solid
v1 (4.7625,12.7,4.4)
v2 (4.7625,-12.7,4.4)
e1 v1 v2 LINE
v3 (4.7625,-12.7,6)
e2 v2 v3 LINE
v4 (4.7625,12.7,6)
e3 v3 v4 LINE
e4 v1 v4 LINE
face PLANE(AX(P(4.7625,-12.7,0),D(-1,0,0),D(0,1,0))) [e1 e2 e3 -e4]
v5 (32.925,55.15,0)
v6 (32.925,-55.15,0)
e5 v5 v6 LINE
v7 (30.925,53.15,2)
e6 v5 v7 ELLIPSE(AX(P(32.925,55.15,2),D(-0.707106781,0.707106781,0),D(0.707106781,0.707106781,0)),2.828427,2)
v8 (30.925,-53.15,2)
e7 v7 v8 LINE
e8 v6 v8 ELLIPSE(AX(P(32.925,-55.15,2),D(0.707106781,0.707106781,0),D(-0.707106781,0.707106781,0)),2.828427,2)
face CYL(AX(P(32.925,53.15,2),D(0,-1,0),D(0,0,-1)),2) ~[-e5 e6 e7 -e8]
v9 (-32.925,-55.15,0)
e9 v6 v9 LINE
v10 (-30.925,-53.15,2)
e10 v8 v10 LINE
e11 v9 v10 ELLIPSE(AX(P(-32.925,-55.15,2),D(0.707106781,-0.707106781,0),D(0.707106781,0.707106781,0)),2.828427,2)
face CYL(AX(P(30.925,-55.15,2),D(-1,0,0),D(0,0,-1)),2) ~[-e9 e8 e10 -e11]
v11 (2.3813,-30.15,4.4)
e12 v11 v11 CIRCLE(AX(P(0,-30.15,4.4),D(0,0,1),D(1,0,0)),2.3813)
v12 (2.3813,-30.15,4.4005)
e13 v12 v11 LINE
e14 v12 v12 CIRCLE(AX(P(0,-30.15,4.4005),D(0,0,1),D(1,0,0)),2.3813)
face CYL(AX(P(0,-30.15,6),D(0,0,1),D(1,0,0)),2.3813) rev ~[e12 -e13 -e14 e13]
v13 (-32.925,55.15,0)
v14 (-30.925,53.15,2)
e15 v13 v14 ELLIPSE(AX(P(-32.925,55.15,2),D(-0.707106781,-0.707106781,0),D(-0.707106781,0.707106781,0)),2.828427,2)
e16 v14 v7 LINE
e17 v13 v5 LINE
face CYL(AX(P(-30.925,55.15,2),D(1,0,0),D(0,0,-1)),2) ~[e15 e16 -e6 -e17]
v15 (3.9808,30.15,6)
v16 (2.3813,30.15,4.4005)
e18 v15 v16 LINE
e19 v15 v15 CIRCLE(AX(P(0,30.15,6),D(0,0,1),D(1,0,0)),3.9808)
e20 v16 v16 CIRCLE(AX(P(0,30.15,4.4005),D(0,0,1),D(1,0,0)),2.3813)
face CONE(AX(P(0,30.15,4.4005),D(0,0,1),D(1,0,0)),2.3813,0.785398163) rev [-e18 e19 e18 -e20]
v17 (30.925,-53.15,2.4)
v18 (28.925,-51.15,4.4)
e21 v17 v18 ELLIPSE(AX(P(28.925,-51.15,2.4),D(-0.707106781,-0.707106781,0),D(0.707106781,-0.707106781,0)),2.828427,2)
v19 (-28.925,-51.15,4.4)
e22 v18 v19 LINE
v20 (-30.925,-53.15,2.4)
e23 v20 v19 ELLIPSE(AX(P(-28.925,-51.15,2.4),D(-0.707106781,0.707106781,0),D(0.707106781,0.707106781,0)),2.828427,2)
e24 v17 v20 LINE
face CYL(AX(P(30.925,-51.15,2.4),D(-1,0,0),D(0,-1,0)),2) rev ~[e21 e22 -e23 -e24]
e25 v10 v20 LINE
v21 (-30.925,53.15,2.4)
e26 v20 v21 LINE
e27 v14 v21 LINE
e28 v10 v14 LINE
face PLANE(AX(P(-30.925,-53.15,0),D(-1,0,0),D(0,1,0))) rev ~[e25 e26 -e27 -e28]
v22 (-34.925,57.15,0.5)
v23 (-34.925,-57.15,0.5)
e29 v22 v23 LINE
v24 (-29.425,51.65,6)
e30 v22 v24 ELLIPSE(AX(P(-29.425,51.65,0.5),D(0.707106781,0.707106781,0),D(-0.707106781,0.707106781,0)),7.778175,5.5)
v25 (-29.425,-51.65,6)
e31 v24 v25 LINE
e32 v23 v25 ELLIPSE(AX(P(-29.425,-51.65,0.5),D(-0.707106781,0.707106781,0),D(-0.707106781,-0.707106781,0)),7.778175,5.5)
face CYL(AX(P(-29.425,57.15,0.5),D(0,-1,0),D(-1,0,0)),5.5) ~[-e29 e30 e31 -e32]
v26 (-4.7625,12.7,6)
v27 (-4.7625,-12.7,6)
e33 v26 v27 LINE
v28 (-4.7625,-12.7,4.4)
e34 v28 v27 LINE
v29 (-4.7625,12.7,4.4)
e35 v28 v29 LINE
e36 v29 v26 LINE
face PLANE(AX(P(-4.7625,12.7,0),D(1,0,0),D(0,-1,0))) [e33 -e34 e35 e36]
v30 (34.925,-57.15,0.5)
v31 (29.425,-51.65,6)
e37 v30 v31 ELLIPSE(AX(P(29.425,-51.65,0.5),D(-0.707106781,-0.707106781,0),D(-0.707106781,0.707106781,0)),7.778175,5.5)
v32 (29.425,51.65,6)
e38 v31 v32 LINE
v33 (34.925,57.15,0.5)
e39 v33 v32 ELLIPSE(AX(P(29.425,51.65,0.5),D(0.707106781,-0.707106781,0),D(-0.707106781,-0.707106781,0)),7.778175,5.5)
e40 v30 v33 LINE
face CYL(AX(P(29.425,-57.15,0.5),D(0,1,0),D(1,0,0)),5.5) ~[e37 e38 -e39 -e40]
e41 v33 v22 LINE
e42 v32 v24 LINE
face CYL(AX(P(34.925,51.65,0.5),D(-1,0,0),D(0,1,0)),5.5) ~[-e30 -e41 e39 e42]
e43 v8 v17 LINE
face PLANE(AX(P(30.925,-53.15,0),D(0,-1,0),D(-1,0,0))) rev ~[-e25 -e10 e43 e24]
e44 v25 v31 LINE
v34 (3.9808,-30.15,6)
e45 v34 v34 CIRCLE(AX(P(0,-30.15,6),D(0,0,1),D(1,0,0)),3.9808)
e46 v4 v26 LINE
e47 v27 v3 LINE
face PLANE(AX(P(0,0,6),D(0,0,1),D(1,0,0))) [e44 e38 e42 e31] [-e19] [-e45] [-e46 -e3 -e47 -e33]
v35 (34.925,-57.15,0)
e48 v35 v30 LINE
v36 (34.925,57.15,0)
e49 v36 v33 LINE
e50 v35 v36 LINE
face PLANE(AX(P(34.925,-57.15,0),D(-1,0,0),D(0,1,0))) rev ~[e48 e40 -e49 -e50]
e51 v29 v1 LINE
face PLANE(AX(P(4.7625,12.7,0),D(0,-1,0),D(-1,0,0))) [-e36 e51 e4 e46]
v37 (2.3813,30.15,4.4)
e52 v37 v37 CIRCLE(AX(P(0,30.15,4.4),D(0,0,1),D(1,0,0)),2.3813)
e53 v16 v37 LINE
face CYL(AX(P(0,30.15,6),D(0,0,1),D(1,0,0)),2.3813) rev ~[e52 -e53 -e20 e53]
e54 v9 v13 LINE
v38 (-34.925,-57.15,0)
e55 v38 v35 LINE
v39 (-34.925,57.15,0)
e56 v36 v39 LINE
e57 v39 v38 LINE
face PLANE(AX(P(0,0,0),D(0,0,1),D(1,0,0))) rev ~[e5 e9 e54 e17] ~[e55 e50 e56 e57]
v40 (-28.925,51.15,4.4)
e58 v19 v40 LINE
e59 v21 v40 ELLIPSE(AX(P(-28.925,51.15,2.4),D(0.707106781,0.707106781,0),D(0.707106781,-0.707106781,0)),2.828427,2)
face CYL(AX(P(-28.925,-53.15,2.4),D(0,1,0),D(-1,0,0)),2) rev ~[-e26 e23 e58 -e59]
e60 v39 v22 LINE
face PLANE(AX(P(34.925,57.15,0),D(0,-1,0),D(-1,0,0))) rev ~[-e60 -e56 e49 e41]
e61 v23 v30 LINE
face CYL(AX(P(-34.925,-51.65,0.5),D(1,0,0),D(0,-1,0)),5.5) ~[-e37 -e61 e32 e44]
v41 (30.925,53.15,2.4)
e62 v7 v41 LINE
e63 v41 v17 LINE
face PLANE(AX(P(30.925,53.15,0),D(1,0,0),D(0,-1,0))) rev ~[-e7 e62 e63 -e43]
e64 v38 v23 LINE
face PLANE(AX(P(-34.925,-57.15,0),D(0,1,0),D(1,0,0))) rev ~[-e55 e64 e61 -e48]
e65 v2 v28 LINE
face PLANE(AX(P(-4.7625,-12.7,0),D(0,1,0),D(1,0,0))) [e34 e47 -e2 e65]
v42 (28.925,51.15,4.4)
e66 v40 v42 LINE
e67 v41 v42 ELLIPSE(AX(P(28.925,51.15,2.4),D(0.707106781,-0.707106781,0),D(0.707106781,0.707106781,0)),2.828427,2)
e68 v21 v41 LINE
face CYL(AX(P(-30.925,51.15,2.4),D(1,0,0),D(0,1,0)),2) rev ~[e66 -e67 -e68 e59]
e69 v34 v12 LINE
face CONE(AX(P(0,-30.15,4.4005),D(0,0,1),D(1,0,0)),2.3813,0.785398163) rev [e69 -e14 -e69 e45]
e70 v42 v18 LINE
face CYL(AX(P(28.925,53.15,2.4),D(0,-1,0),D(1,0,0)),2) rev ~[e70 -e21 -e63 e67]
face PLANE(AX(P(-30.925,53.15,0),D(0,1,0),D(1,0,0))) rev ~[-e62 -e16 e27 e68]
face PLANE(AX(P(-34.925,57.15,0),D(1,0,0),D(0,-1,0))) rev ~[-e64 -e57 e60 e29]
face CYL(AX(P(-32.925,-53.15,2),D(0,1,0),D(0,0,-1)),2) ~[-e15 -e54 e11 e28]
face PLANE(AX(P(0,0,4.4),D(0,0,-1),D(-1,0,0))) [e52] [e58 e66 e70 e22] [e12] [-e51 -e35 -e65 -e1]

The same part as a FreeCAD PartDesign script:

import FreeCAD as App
import Part
import Sketcher
from FreeCAD import Vector
Q = App.Units.Quantity


def edges_at(feature, points):
    """Names of the edges that pass closest to the given points."""
    edges = feature.Shape.Edges
    near = lambda p: min(range(len(edges)), key=lambda i: edges[i].distToShape(Part.Vertex(*p))[0])
    return sorted({f"Edge{near(p) + 1}" for p in points})


def add_polygon(sketch, points):
    """Adds a closed chain of lines whose ends are joined by coincident constraints."""
    first, n = sketch.GeometryCount, len(points)
    for a, b in zip(points, points[1:] + points[:1]):
        sketch.addGeometry(Part.LineSegment(App.Vector(*a, 0), App.Vector(*b, 0)), False)
    for i in range(n):
        sketch.addConstraint(Sketcher.Constraint("Coincident", first + i, 2, first + (i + 1) % n, 1))

doc = App.newDocument("Part")
body = doc.addObject("PartDesign::Body", "Body")

sketch1 = doc.addObject("Sketcher::SketchObject", "Sketch")
body.addObject(sketch1)
sketch1.AttachmentSupport = (doc.XY_Plane, [""])
sketch1.MapMode = "FlatFace"
add_polygon(sketch1, [(-35, 57), (-35, -57), (35, -57), (35, 57)])
add_polygon(sketch1, [(5, -13), (-5, -13), (-5, 13), (5, 13)])
sketch1.addConstraint(Sketcher.Constraint("Vertical", 0))
sketch1.addConstraint(Sketcher.Constraint("Horizontal", 1))
sketch1.addConstraint(Sketcher.Constraint("Vertical", 2))
sketch1.addConstraint(Sketcher.Constraint("Horizontal", 3))
sketch1.addConstraint(Sketcher.Constraint("Horizontal", 4))
sketch1.addConstraint(Sketcher.Constraint("Vertical", 5))
sketch1.addConstraint(Sketcher.Constraint("Horizontal", 6))
sketch1.addConstraint(Sketcher.Constraint("Vertical", 7))
sketch1.addConstraint(Sketcher.Constraint("Symmetric", 0, 2, 2, 2, -1, 1))
sketch1.addConstraint(Sketcher.Constraint("Symmetric", 4, 2, 6, 2, -1, 1))
sketch1.addConstraint(Sketcher.Constraint("DistanceY", 5, 1, 5, 2, Q("1 in")))
sketch1.addConstraint(Sketcher.Constraint("DistanceY", 0, 2, 0, 1, Q("4.5 in")))
sketch1.addConstraint(Sketcher.Constraint("DistanceX", 1, 1, 1, 2, Q("2.75 in")))
sketch1.addConstraint(Sketcher.Constraint("DistanceX", 4, 2, 4, 1, Q("0.375 in")))
pad1 = doc.addObject("PartDesign::Pad", "Pad")
body.addObject(pad1)
pad1.Profile = sketch1
pad1.Length = 6
doc.recompute()

fillet = doc.addObject("PartDesign::Fillet", "Fillet")
body.addObject(fillet)
fillet.Base = (pad1, edges_at(pad1, [
    (0, 57.15, 6),
    (-34.925, 0, 6),
    (34.925, 0, 6),
    (0, -57.15, 6),
]))
fillet.Radius = 5.5

sketch2 = doc.addObject("Sketcher::SketchObject", "Sketch001")
body.addObject(sketch2)
sketch2.AttachmentSupport = (doc.XY_Plane, [""])
sketch2.MapMode = "FlatFace"
add_polygon(sketch2, [(31, 53), (31, -53), (-31, -53), (-31, 53)])
sketch2.addConstraint(Sketcher.Constraint("Vertical", 0))
sketch2.addConstraint(Sketcher.Constraint("Horizontal", 1))
sketch2.addConstraint(Sketcher.Constraint("Vertical", 2))
sketch2.addConstraint(Sketcher.Constraint("Horizontal", 3))
sketch2.addConstraint(Sketcher.Constraint("Symmetric", 0, 2, 2, 2, -1, 1))
sketch2.addConstraint(Sketcher.Constraint("DistanceX", 1, 2, 1, 1, Q("61.85 mm")))
sketch2.addConstraint(Sketcher.Constraint("DistanceY", 0, 2, 0, 1, Q("106.3 mm")))
pocket1 = doc.addObject("PartDesign::Pocket", "Pocket")
body.addObject(pocket1)
pocket1.Profile = sketch2
pocket1.Length = 4.4
pocket1.Reversed = True
doc.recompute()

fillet2 = doc.addObject("PartDesign::Fillet", "Fillet001")
body.addObject(fillet2)
fillet2.Base = (pocket1, edges_at(pocket1, [
    (-30.925, 0, 0),
    (0, -53.15, 0),
    (0, 53.15, 0),
    (0, 53.15, 4.4),
    (30.925, 0, 4.4),
    (-30.925, 0, 4.4),
    (30.925, 0, 0),
    (0, -53.15, 4.4),
]))
fillet2.Radius = 2

sketch3 = doc.addObject("Sketcher::SketchObject", "Sketch002")
body.addObject(sketch3)
sketch3.AttachmentSupport = (doc.XY_Plane, [""])
sketch3.MapMode = "FlatFace"
sketch3.AttachmentOffset = App.Placement(Vector(0, 0, 6), App.Rotation())
sketch3.addGeometry(Part.Circle(Vector(0, 30.1, 0), Vector(0, 0, 1), 2.4), False)
sketch3.addGeometry(Part.Circle(Vector(0, -30.1, 0), Vector(0, 0, 1), 2.4), False)
sketch3.addConstraint(Sketcher.Constraint("Equal", 0, 1))
sketch3.addConstraint(Sketcher.Constraint("Symmetric", 0, 3, 1, 3, -1, 1))
sketch3.addConstraint(Sketcher.Constraint("PointOnObject", 0, 3, -2))
sketch3.addConstraint(Sketcher.Constraint("Diameter", 0, Q("0.1875 in")))
sketch3.addConstraint(Sketcher.Constraint("DistanceY", -1, 1, 0, 3, Q("1.187 in")))
pocket2 = doc.addObject("PartDesign::Pocket", "Pocket001")
body.addObject(pocket2)
pocket2.Profile = sketch3
pocket2.Type = "ThroughAll"
doc.recompute()

chamfer = doc.addObject("PartDesign::Chamfer", "Chamfer")
body.addObject(chamfer)
chamfer.Base = (pocket2, edges_at(pocket2, [(-2.381, 30.15, 6), (-2.381, -30.15, 6)]))
chamfer.Size = Q("0.0629921 in")

doc.recompute()
